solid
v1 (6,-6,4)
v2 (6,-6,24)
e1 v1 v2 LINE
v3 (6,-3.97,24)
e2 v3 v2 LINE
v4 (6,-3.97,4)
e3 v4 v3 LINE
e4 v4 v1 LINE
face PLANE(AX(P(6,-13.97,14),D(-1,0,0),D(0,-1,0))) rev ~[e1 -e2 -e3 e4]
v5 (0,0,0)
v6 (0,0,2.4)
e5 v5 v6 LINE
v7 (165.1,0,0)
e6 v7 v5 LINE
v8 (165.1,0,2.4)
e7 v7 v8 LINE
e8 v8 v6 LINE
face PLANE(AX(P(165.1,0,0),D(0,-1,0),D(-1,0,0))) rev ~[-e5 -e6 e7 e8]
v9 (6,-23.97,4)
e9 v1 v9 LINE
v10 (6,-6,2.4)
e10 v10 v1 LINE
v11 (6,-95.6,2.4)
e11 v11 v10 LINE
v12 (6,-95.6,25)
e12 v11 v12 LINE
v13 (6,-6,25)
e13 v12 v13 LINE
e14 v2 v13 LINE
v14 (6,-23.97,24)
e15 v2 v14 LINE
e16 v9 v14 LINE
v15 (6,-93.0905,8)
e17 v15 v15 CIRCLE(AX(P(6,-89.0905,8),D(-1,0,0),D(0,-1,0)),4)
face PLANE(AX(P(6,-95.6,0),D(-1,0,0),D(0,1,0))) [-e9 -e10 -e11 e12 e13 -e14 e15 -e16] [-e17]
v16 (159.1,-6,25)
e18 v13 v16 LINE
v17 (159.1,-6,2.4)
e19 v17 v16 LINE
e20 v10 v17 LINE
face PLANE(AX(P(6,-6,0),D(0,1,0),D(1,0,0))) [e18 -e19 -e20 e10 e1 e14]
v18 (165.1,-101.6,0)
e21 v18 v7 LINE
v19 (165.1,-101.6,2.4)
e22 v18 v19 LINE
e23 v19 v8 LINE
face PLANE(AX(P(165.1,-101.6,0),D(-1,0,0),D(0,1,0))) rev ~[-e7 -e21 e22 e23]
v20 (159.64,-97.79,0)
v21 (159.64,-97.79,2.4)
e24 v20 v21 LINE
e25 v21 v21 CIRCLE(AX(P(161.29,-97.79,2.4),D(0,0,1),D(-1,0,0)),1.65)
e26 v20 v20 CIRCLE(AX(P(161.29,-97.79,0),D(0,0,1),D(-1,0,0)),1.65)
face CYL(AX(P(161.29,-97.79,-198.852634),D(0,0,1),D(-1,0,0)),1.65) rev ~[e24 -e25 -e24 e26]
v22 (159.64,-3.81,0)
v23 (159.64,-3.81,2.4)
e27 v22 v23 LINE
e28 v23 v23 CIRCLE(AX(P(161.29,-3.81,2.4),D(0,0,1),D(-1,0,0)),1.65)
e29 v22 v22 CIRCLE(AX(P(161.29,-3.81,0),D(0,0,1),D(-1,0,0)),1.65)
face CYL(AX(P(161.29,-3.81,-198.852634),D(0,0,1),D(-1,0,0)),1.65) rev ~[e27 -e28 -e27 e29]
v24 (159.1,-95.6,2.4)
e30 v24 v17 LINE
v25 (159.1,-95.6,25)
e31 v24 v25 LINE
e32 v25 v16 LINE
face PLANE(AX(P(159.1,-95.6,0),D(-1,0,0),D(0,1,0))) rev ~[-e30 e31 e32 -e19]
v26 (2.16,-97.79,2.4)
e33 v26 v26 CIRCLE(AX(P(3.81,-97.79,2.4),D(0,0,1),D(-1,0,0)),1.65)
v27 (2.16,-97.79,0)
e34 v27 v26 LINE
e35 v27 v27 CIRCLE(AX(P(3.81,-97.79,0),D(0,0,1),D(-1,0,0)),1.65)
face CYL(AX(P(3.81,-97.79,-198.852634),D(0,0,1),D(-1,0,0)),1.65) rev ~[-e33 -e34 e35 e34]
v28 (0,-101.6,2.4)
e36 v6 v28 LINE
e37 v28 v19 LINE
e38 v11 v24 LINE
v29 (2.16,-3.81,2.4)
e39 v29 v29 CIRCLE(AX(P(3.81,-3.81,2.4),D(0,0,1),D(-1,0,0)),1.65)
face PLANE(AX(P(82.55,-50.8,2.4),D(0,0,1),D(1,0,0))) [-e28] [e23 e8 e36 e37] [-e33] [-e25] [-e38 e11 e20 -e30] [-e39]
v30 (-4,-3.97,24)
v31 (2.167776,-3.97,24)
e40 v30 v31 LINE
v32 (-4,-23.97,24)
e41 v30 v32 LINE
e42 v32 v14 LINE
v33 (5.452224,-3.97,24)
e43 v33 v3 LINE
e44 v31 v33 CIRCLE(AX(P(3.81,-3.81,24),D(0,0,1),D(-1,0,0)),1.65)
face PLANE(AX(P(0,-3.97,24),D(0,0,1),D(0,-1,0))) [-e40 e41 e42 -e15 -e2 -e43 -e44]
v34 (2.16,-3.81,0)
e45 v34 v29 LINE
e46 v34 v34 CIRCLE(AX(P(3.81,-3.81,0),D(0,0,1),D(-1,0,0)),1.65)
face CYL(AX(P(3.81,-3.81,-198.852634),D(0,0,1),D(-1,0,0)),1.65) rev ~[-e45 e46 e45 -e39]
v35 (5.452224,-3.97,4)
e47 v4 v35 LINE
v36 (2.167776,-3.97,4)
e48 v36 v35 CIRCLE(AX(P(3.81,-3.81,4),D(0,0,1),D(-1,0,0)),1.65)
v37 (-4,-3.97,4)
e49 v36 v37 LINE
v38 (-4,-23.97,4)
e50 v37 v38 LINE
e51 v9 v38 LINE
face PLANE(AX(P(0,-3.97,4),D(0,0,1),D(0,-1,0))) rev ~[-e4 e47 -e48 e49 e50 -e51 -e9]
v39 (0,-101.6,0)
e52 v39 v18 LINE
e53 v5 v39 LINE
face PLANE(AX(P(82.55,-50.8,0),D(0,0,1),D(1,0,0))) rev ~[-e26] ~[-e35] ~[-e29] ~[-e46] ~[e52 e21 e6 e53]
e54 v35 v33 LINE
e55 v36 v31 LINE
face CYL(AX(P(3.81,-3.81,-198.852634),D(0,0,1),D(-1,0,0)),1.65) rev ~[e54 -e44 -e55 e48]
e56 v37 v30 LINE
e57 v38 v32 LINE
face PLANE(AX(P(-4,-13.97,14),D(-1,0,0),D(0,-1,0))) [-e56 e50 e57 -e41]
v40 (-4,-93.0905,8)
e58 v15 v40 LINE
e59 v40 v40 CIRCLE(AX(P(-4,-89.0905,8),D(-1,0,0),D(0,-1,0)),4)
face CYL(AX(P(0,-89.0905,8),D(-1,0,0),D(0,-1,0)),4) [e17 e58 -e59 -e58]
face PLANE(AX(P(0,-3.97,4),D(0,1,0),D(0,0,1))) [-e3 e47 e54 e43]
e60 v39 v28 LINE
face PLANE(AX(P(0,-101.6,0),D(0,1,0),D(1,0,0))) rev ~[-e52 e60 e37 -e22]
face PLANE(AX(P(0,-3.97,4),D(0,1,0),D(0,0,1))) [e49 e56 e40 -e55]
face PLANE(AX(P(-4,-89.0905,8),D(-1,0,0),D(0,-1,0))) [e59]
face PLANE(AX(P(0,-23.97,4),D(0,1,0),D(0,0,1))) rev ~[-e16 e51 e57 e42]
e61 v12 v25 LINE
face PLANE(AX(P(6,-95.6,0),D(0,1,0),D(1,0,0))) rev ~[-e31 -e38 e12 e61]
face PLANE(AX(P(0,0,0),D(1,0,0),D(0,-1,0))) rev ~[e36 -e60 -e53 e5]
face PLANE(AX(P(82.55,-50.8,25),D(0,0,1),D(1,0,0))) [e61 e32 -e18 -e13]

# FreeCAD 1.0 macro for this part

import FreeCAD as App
import Part
import Sketcher

doc = App.newDocument("Part")
body = doc.addObject("PartDesign::Body", "Body")

sketch1 = doc.addObject("Sketcher::SketchObject", "Sketch")
body.addObject(sketch1)
sketch1.AttachmentSupport = (doc.XY_Plane, [""])
sketch1.MapMode = "FlatFace"
sketch1.addGeometry([
    Part.LineSegment(App.Vector(165, 0, 0), App.Vector(0, 0, 0)),
    Part.LineSegment(App.Vector(0, 0, 0), App.Vector(0, -102, 0)),
    Part.LineSegment(App.Vector(0, -102, 0), App.Vector(165, -102, 0)),
    Part.LineSegment(App.Vector(165, -102, 0), App.Vector(165, 0, 0)),
    Part.LineSegment(App.Vector(159, -96, 0), App.Vector(6, -96, 0)),
    Part.LineSegment(App.Vector(6, -96, 0), App.Vector(6, -6, 0)),
    Part.LineSegment(App.Vector(6, -6, 0), App.Vector(159, -6, 0)),
    Part.LineSegment(App.Vector(159, -6, 0), App.Vector(159, -96, 0)),
], False)
sketch1.addConstraint([
    Sketcher.Constraint("Coincident", 0, 2, 1, 1),
    Sketcher.Constraint("Coincident", 1, 2, 2, 1),
    Sketcher.Constraint("Coincident", 2, 2, 3, 1),
    Sketcher.Constraint("Coincident", 3, 2, 0, 1),
    Sketcher.Constraint("Coincident", 4, 2, 5, 1),
    Sketcher.Constraint("Coincident", 5, 2, 6, 1),
    Sketcher.Constraint("Coincident", 6, 2, 7, 1),
    Sketcher.Constraint("Coincident", 7, 2, 4, 1),
    Sketcher.Constraint("Horizontal", 0),
    Sketcher.Constraint("Vertical", 1),
    Sketcher.Constraint("Horizontal", 2),
    Sketcher.Constraint("Vertical", 3),
    Sketcher.Constraint("Horizontal", 4),
    Sketcher.Constraint("Vertical", 5),
    Sketcher.Constraint("Horizontal", 6),
    Sketcher.Constraint("Vertical", 7),
    Sketcher.Constraint("Coincident", 0, 2, -1, 1),
    Sketcher.Constraint("DistanceX", 0, 2, 0, 1, 165.1),
    Sketcher.Constraint("DistanceX", 4, 2, 4, 1, 153.1),
    Sketcher.Constraint("DistanceY", 1, 2, 1, 1, 101.6),
    Sketcher.Constraint("DistanceY", 5, 1, 5, 2, 89.6),
    Sketcher.Constraint("DistanceX", -1, 1, 4, 2, 6.0),
    Sketcher.Constraint("DistanceY", 5, 2, -1, 1, 6.0),
])
pad1 = doc.addObject("PartDesign::Pad", "Pad")
body.addObject(pad1)
pad1.Profile = sketch1
pad1.Length = 2.4

sketch2 = doc.addObject("Sketcher::SketchObject", "Sketch001")
body.addObject(sketch2)
sketch2.AttachmentSupport = (doc.XY_Plane, [""])
sketch2.MapMode = "FlatFace"
sketch2.addGeometry([
    Part.LineSegment(App.Vector(6, -6, 0), App.Vector(6, -96, 0)),
    Part.LineSegment(App.Vector(6, -96, 0), App.Vector(159, -96, 0)),
    Part.LineSegment(App.Vector(159, -96, 0), App.Vector(159, -6, 0)),
    Part.LineSegment(App.Vector(159, -6, 0), App.Vector(6, -6, 0)),
], False)
sketch2.addConstraint([
    Sketcher.Constraint("Coincident", 0, 2, 1, 1),
    Sketcher.Constraint("Coincident", 1, 2, 2, 1),
    Sketcher.Constraint("Coincident", 2, 2, 3, 1),
    Sketcher.Constraint("Coincident", 3, 2, 0, 1),
    Sketcher.Constraint("Vertical", 0),
    Sketcher.Constraint("Horizontal", 1),
    Sketcher.Constraint("Vertical", 2),
    Sketcher.Constraint("Horizontal", 3),
    Sketcher.Constraint("DistanceX", 1, 1, 1, 2, 153.1),
    Sketcher.Constraint("DistanceY", 0, 2, 0, 1, 89.6),
    Sketcher.Constraint("DistanceX", -1, 1, 0, 2, 6.0),
    Sketcher.Constraint("DistanceY", 2, 2, -1, 1, 6.0),
])
pad2 = doc.addObject("PartDesign::Pad", "Pad001")
body.addObject(pad2)
pad2.Profile = sketch2
pad2.Length = 25

sketch3 = doc.addObject("Sketcher::SketchObject", "Sketch002")
body.addObject(sketch3)
sketch3.AttachmentSupport = (doc.YZ_Plane, [""])
sketch3.MapMode = "FlatFace"
sketch3.addGeometry([
    Part.LineSegment(App.Vector(-4, 24, 0), App.Vector(-4, 4, 0)),
    Part.LineSegment(App.Vector(-4, 4, 0), App.Vector(-24, 4, 0)),
    Part.LineSegment(App.Vector(-24, 4, 0), App.Vector(-24, 24, 0)),
    Part.LineSegment(App.Vector(-24, 24, 0), App.Vector(-4, 24, 0)),
    Part.Circle(App.Vector(-89.1, 8, 0), App.Vector(0, 0, 1), 4),
], False)
sketch3.addConstraint([
    Sketcher.Constraint("Coincident", 0, 2, 1, 1),
    Sketcher.Constraint("Coincident", 1, 2, 2, 1),
    Sketcher.Constraint("Coincident", 2, 2, 3, 1),
    Sketcher.Constraint("Coincident", 3, 2, 0, 1),
    Sketcher.Constraint("Vertical", 0),
    Sketcher.Constraint("Horizontal", 1),
    Sketcher.Constraint("Vertical", 2),
    Sketcher.Constraint("Horizontal", 3),
    Sketcher.Constraint("Equal", 3, 0),
    Sketcher.Constraint("Diameter", 4, 8.0),
    Sketcher.Constraint("DistanceX", 1, 2, 1, 1, 20.0),
    Sketcher.Constraint("DistanceY", -1, 1, 4, 3, 8.0),
    Sketcher.Constraint("DistanceY", -1, 1, 0, 2, 4.0),
    Sketcher.Constraint("DistanceX", 0, 2, -1, 1, 3.97),
    Sketcher.Constraint("DistanceX", 4, 3, -1, 1, 89.0905),
])
pad3 = doc.addObject("PartDesign::Pad", "Pad002")
body.addObject(pad3)
pad3.Profile = sketch3
pad3.Type = "TwoLengths"
pad3.Length = 6
pad3.Length2 = 4

sketch4 = doc.addObject("Sketcher::SketchObject", "Sketch003")
body.addObject(sketch4)
sketch4.AttachmentSupport = (doc.XY_Plane, [""])
sketch4.MapMode = "FlatFace"
sketch4.addGeometry([
    Part.Circle(App.Vector(3.8, -3.8, 0), App.Vector(0, 0, 1), 1.6),
    Part.Circle(App.Vector(3.8, -97.8, 0), App.Vector(0, 0, 1), 1.6),
    Part.Circle(App.Vector(161.3, -97.8, 0), App.Vector(0, 0, 1), 1.6),
    Part.Circle(App.Vector(161.3, -3.8, 0), App.Vector(0, 0, 1), 1.6),
], False)
sketch4.addConstraint([
    Sketcher.Constraint("Equal", 0, 1),
    Sketcher.Constraint("Equal", 1, 2),
    Sketcher.Constraint("Equal", 2, 3),
    Sketcher.Constraint("Horizontal", 1, 3, 2, 3),
    Sketcher.Constraint("Horizontal", 0, 3, 3, 3),
    Sketcher.Constraint("Vertical", 0, 3, 1, 3),
    Sketcher.Constraint("Vertical", 2, 3, 3, 3),
    Sketcher.Constraint("Diameter", 0, 3.3),
    Sketcher.Constraint("DistanceX", -1, 1, 0, 3, 3.81),
    Sketcher.Constraint("DistanceY", 0, 3, -1, 1, 3.81),
    Sketcher.Constraint("DistanceY", 1, 3, -1, 1, 97.79),
    Sketcher.Constraint("DistanceX", -1, 1, 2, 3, 161.29),
])
doc.recompute()
hole = doc.addObject("PartDesign::Hole", "Hole")
body.addObject(hole)
hole.Profile = sketch4
hole.ThreadType = "None"
hole.Diameter = 3.3
hole.DepthType = "ThroughAll"
hole.Reversed = True

doc.recompute()
